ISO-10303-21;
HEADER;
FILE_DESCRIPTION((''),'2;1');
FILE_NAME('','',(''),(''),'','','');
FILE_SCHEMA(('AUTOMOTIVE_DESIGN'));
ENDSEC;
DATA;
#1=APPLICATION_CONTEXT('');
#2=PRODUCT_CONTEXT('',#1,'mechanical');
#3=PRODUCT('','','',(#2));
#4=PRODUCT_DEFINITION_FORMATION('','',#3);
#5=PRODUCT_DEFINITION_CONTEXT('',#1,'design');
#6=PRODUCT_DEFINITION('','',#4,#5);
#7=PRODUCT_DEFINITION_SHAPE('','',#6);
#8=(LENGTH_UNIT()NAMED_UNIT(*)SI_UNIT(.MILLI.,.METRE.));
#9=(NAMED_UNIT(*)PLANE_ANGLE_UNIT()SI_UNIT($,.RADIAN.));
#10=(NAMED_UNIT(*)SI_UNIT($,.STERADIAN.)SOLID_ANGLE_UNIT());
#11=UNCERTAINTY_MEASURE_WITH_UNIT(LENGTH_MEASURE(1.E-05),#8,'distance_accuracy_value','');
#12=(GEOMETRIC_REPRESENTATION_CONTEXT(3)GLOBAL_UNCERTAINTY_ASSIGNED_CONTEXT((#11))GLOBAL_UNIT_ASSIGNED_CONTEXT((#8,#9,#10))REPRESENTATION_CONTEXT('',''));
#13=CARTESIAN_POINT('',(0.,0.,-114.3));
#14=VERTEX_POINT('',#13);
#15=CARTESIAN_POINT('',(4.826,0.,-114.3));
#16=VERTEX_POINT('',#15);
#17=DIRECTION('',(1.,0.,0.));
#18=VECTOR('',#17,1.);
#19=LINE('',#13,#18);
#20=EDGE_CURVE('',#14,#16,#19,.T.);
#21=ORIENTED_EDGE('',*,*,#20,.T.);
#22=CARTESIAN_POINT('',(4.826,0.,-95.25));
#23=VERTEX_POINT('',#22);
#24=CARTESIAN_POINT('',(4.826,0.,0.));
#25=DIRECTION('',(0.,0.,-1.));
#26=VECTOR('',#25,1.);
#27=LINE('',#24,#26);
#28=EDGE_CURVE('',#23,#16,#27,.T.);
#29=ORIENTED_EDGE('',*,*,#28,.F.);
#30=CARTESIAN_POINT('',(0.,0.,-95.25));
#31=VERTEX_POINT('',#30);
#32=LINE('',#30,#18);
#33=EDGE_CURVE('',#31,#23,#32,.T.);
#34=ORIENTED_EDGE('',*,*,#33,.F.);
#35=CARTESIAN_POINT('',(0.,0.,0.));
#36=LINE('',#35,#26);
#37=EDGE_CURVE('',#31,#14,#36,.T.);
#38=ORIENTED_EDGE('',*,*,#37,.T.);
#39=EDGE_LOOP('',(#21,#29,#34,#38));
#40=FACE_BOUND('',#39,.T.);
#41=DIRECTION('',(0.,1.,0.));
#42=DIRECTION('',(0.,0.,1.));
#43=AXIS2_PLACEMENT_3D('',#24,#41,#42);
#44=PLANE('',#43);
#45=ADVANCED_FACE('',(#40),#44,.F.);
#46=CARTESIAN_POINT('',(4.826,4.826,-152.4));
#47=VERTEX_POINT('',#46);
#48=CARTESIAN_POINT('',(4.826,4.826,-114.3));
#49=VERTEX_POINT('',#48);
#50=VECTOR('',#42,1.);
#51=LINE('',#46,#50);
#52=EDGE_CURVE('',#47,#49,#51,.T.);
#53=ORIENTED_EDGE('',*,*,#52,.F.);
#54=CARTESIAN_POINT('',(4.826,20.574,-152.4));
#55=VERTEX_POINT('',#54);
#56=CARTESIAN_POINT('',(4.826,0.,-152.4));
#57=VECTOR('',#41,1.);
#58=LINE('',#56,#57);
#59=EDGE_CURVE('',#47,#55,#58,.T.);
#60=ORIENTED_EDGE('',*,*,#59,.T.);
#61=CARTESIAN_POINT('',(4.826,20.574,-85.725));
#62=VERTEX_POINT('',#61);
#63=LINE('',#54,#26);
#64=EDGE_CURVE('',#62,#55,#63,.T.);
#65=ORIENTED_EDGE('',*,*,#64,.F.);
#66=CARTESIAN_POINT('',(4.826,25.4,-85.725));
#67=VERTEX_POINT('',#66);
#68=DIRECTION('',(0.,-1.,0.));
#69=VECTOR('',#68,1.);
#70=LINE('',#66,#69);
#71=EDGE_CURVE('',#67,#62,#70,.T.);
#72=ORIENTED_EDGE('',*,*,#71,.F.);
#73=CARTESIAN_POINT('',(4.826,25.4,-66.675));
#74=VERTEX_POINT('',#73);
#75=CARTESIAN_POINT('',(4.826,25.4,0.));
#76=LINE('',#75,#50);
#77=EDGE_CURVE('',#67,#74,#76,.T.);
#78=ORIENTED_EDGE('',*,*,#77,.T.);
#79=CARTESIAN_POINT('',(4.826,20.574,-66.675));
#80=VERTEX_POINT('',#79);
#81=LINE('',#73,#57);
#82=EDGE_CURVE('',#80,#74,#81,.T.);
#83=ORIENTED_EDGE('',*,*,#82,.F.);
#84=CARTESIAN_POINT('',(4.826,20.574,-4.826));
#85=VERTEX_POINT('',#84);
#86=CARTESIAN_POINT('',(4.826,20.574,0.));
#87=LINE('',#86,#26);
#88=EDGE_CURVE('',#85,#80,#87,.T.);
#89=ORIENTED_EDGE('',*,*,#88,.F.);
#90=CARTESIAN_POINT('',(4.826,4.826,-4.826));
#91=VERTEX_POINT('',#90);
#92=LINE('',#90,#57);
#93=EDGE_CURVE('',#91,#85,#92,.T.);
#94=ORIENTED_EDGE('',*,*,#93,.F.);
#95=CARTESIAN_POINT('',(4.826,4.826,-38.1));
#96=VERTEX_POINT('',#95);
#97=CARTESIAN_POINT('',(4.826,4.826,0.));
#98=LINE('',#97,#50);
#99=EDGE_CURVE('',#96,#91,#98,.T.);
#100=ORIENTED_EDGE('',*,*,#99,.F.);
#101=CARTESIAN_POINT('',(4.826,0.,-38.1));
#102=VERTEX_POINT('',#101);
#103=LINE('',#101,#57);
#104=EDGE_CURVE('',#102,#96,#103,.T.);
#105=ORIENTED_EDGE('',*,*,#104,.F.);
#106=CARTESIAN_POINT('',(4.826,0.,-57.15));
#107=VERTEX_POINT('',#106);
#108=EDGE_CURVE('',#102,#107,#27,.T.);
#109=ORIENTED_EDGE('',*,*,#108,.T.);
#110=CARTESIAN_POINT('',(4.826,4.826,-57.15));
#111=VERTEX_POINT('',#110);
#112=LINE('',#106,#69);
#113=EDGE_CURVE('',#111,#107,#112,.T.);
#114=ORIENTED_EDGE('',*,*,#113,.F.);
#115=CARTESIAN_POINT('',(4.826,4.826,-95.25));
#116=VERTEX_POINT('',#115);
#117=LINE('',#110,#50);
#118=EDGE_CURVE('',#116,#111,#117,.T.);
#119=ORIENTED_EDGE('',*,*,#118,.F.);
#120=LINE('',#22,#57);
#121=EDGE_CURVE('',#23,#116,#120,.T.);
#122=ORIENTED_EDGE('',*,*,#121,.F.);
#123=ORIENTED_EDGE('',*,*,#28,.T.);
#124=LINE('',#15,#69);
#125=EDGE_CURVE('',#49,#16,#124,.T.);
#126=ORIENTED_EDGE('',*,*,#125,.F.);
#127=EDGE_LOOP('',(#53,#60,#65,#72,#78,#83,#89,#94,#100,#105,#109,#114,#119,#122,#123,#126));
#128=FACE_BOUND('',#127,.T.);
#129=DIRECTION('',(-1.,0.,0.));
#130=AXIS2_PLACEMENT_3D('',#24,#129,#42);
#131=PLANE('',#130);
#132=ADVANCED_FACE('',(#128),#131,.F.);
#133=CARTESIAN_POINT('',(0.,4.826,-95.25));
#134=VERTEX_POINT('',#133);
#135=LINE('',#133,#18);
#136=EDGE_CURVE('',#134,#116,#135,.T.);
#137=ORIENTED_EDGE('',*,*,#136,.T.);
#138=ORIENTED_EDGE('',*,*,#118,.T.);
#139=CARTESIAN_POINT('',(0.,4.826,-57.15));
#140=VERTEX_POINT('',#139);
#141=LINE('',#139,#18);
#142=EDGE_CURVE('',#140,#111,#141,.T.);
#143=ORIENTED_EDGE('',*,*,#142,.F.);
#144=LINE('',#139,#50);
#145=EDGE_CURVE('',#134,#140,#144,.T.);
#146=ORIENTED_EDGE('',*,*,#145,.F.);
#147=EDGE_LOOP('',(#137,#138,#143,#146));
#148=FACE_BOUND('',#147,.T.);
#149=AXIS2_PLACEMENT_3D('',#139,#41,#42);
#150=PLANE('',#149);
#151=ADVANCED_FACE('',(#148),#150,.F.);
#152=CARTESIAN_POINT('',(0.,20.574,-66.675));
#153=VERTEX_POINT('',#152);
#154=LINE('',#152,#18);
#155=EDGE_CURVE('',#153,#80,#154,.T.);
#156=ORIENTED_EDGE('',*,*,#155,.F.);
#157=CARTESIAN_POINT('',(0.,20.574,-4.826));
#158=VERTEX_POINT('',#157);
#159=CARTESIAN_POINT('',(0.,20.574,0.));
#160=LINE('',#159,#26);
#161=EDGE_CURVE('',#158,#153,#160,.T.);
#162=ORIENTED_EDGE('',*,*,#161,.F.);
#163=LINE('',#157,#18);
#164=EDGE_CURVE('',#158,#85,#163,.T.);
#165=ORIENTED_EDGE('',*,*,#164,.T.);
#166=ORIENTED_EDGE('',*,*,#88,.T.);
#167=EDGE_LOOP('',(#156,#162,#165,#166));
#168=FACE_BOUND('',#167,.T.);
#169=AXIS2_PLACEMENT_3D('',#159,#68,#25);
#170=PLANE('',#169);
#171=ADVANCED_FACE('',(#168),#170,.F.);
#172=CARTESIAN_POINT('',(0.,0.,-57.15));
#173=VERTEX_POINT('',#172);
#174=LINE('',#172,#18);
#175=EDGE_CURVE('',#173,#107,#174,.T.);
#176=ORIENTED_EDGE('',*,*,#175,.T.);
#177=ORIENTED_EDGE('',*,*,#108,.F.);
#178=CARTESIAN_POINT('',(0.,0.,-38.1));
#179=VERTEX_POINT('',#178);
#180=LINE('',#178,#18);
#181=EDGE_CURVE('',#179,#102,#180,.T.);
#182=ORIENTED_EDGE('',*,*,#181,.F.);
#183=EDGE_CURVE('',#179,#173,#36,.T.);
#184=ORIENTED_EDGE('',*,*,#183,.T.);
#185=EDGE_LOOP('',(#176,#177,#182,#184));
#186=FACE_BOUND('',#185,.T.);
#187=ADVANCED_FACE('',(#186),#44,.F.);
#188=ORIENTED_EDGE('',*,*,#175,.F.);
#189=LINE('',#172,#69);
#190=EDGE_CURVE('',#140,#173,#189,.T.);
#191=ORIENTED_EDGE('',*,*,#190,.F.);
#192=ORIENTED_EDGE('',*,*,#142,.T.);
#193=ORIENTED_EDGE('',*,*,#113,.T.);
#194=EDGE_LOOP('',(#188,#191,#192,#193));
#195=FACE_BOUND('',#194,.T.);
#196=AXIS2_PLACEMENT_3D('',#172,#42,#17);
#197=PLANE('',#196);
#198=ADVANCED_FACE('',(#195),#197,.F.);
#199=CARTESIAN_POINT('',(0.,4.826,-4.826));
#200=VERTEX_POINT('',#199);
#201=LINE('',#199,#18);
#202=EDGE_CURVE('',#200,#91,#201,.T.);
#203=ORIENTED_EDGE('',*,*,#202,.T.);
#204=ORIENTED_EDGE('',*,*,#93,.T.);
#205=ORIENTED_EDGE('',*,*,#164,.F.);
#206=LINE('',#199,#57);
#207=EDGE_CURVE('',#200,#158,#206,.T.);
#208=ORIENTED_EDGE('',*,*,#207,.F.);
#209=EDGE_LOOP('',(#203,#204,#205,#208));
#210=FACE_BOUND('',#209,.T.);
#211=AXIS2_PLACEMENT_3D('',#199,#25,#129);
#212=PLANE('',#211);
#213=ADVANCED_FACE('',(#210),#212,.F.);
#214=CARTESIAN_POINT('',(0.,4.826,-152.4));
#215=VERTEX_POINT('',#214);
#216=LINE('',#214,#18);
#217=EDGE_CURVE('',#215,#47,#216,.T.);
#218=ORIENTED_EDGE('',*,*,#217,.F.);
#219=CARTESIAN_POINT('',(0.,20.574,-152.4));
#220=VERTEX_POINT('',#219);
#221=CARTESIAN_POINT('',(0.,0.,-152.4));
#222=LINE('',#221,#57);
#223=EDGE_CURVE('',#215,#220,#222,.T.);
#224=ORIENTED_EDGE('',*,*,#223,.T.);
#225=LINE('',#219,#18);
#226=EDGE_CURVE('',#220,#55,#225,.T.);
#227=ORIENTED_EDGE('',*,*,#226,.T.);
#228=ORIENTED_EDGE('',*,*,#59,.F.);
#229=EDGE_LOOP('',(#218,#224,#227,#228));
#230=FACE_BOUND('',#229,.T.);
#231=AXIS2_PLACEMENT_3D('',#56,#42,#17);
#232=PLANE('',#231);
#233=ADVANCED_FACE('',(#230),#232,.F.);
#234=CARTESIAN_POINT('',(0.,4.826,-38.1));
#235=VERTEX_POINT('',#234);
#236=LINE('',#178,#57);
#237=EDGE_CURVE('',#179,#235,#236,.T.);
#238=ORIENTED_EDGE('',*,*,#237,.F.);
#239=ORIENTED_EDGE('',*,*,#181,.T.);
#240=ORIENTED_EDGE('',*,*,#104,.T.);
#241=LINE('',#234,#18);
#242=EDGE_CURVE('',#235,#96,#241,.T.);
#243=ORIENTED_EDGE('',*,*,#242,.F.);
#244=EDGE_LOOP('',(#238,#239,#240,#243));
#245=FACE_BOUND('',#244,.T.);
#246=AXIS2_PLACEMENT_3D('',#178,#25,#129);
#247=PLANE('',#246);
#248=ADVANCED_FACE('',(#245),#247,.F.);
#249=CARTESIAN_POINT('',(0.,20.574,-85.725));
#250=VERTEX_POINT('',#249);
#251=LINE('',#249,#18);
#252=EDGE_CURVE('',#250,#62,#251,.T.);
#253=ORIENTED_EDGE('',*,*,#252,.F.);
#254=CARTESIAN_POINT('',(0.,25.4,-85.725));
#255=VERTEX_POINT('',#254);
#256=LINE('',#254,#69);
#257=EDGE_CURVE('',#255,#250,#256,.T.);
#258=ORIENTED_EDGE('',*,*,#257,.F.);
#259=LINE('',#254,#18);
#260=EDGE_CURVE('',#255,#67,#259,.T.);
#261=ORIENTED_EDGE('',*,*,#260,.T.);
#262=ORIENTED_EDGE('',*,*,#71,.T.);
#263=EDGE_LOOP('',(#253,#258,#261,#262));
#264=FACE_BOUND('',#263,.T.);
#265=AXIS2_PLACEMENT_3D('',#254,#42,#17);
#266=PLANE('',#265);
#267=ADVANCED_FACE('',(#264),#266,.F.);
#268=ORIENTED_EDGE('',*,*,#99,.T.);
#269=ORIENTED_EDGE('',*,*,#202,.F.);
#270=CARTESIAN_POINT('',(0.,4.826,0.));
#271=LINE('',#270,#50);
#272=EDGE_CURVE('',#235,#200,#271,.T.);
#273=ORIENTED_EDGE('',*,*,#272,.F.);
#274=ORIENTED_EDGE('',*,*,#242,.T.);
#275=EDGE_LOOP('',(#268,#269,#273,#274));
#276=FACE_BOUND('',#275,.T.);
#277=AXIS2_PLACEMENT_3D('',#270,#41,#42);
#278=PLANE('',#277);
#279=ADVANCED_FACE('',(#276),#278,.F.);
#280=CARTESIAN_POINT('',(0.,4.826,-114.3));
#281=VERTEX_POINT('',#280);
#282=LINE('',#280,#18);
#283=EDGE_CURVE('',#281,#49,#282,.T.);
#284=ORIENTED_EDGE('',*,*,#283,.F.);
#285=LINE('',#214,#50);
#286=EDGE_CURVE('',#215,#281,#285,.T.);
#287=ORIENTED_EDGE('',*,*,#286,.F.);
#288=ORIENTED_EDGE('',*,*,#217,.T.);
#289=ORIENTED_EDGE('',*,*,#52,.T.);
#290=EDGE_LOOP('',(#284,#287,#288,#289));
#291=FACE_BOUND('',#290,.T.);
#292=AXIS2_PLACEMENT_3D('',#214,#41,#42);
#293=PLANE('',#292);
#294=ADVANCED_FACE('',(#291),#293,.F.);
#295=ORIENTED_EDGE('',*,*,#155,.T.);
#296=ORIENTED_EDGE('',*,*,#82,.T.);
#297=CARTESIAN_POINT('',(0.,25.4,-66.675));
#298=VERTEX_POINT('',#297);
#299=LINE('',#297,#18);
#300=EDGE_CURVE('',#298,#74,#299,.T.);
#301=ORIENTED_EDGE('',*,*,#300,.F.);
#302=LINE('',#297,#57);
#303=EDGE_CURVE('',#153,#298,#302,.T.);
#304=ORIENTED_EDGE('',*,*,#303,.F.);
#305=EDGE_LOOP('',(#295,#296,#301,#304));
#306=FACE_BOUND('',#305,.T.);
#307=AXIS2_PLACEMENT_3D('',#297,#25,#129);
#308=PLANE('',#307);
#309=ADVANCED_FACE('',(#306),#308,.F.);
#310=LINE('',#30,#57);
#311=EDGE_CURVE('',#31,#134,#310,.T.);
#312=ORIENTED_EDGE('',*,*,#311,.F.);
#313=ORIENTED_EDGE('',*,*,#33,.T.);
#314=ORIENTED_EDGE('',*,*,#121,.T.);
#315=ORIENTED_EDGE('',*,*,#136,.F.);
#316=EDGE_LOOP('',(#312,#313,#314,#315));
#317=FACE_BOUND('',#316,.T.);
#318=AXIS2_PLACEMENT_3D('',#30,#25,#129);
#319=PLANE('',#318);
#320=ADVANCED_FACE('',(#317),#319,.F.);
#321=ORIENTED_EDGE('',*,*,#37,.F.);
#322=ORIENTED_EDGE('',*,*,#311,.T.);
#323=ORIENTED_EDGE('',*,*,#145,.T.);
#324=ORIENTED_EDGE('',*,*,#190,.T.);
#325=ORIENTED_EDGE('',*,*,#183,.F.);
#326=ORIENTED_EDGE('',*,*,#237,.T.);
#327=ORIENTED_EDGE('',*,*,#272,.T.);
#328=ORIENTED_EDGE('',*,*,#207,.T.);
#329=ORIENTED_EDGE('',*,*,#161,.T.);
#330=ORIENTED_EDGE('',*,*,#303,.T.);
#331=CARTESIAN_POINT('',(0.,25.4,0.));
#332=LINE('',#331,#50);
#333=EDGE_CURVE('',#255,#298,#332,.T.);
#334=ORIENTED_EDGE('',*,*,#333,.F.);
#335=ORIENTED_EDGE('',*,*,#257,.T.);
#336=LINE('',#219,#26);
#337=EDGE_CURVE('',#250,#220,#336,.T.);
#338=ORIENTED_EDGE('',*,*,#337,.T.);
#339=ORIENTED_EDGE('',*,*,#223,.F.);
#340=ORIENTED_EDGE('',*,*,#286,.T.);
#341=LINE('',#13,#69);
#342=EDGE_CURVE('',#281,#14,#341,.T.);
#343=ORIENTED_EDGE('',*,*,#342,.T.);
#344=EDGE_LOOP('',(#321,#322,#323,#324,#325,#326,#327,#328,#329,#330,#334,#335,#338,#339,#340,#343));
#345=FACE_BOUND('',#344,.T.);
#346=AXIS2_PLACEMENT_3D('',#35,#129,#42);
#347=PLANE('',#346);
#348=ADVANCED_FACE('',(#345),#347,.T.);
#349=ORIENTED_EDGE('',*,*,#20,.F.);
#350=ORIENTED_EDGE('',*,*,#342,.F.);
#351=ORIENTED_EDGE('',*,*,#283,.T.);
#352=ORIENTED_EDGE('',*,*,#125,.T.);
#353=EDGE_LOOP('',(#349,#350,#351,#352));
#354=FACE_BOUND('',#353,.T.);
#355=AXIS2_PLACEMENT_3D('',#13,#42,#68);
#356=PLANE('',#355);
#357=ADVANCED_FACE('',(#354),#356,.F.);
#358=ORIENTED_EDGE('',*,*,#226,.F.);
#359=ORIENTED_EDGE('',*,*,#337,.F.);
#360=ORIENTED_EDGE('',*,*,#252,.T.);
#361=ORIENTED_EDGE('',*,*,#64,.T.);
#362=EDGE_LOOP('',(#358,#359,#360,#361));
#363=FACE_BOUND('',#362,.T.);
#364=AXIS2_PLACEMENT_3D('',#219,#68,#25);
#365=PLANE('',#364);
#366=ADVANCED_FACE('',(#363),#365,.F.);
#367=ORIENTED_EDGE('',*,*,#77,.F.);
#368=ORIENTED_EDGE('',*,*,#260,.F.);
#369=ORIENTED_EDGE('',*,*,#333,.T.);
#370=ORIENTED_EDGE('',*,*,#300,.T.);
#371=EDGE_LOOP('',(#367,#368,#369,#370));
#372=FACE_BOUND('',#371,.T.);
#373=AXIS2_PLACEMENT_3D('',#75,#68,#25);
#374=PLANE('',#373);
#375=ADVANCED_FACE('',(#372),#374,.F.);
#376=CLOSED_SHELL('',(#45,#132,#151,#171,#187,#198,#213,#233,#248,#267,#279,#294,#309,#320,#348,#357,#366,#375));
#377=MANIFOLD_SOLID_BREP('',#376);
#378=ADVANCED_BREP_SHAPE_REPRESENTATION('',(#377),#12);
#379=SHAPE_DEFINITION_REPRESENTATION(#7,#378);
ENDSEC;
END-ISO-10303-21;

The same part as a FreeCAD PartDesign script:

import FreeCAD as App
import Part
import Sketcher
from FreeCAD import Vector
Q = App.Units.Quantity


def add_polygon(sketch, points):
    """Adds a closed chain of lines whose ends are joined by coincident constraints."""
    first, n = sketch.GeometryCount, len(points)
    for a, b in zip(points, points[1:] + points[:1]):
        sketch.addGeometry(Part.LineSegment(App.Vector(*a, 0), App.Vector(*b, 0)), False)
    for i in range(n):
        sketch.addConstraint(Sketcher.Constraint("Coincident", first + i, 2, first + (i + 1) % n, 1))

doc = App.newDocument("Part")
params = doc.addObject("Spreadsheet::Sheet", "Params")
for row, (alias, value) in enumerate([
    ("sketch1_width", "1 in"),
    ("sketch1_height", "6 in"),
    ("pad1_length", "0.19 in"),
    ("sketch2_height", "1.5 in"),
    ("sketch2_width", "0.19 in"),
    ("sketch3_width", "0.19 in"),
    ("sketch3_height", "2.625 in"),
    ("sketch4_width", "0.62 in"),
    ("sketch4_height", "0.19 in"),
], start=1):
    params.set(f"A{row}", alias)
    params.set(f"B{row}", "=" + value)
    params.setAlias(f"B{row}", alias)

body = doc.addObject("PartDesign::Body", "Body")

sketch1 = body.newObject("Sketcher::SketchObject", "Sketch")
sketch1.AttachmentSupport = (doc.getObject("YZ_Plane"), [""])
sketch1.MapMode = "FlatFace"
add_polygon(sketch1, [(25, 0), (0, 0), (0, -152), (25, -152)])
sketch1.addConstraint(Sketcher.Constraint("Horizontal", 0))
sketch1.addConstraint(Sketcher.Constraint("Vertical", 1))
sketch1.addConstraint(Sketcher.Constraint("Horizontal", 2))
sketch1.addConstraint(Sketcher.Constraint("Vertical", 3))
sketch1.addConstraint(Sketcher.Constraint("Coincident", 0, 2, -1, 1))
sketch1.addConstraint(Sketcher.Constraint("DistanceX", 0, 2, 0, 1, Q("1 in")))
sketch1.addConstraint(Sketcher.Constraint("DistanceY", 1, 2, 1, 1, Q("6 in")))
sketch1.setExpression("Constraints[9]", "Params.sketch1_width")
sketch1.setExpression("Constraints[10]", "Params.sketch1_height")
pad1 = body.newObject("PartDesign::Pad", "Pad")
pad1.Profile = sketch1
pad1.setExpression("Length", "Params.pad1_length")

sketch2 = body.newObject("Sketcher::SketchObject", "Sketch001")
sketch2.AttachmentSupport = (doc.getObject("YZ_Plane"), [""])
sketch2.MapMode = "FlatFace"
sketch2.AttachmentOffset = App.Placement(Vector(0, 0, 0.19 * 25.4), App.Rotation())
add_polygon(sketch2, [(4.8, 0), (0, 0), (0, -38.1), (4.8, -38.1)])
add_polygon(sketch2, [(4.8, -57.1), (0, -57.1), (0, -95.2), (4.8, -95.2)])
add_polygon(sketch2, [(4.8, -114.3), (0, -114.3), (0, -152.4), (4.8, -152.4)])
sketch2.addConstraint(Sketcher.Constraint("Horizontal", 0))
sketch2.addConstraint(Sketcher.Constraint("Vertical", 1))
sketch2.addConstraint(Sketcher.Constraint("Horizontal", 2))
sketch2.addConstraint(Sketcher.Constraint("Vertical", 3))
sketch2.addConstraint(Sketcher.Constraint("Horizontal", 4))
sketch2.addConstraint(Sketcher.Constraint("Vertical", 5))
sketch2.addConstraint(Sketcher.Constraint("Horizontal", 6))
sketch2.addConstraint(Sketcher.Constraint("Vertical", 7))
sketch2.addConstraint(Sketcher.Constraint("Horizontal", 8))
sketch2.addConstraint(Sketcher.Constraint("Vertical", 9))
sketch2.addConstraint(Sketcher.Constraint("Horizontal", 10))
sketch2.addConstraint(Sketcher.Constraint("Vertical", 11))
sketch2.addConstraint(Sketcher.Constraint("Coincident", 0, 2, -1, 1))
sketch2.addConstraint(Sketcher.Constraint("PointOnObject", 4, 2, -2))
sketch2.addConstraint(Sketcher.Constraint("PointOnObject", 8, 2, -2))
sketch2.addConstraint(Sketcher.Constraint("Vertical", 3, 2, 6, 2))
sketch2.addConstraint(Sketcher.Constraint("Vertical", 7, 2, 10, 2))
sketch2.addConstraint(Sketcher.Constraint("Equal", 3, 5))
sketch2.addConstraint(Sketcher.Constraint("Equal", 7, 9))
sketch2.addConstraint(Sketcher.Constraint("DistanceY", 1, 2, 1, 1, Q("1.5 in")))
sketch2.addConstraint(Sketcher.Constraint("DistanceY", 9, 2, -1, 1, Q("6 in")))
sketch2.addConstraint(Sketcher.Constraint("DistanceX", 0, 2, 0, 1, Q("0.19 in")))
sketch2.addConstraint(Sketcher.Constraint("DistanceY", 4, 2, -1, 1, Q("2.25 in")))
sketch2.setExpression("Constraints[31]", "Params.sketch2_height")
sketch2.setExpression("Constraints[33]", "Params.sketch2_width")
pocket1 = body.newObject("PartDesign::Pocket", "Pocket")
pocket1.Profile = sketch2
pocket1.Type = "ThroughAll"

sketch3 = body.newObject("Sketcher::SketchObject", "Sketch002")
sketch3.AttachmentSupport = (doc.getObject("YZ_Plane"), [""])
sketch3.MapMode = "FlatFace"
sketch3.AttachmentOffset = App.Placement(Vector(0, 0, 0.19 * 25.4), App.Rotation())
add_polygon(sketch3, [(25.4, 0), (20.6, 0), (20.6, -66.7), (25.4, -66.7)])
add_polygon(sketch3, [(25.4, -85.7), (20.6, -85.7), (20.6, -152.4), (25.4, -152.4)])
sketch3.addConstraint(Sketcher.Constraint("Horizontal", 0))
sketch3.addConstraint(Sketcher.Constraint("Vertical", 1))
sketch3.addConstraint(Sketcher.Constraint("Horizontal", 2))
sketch3.addConstraint(Sketcher.Constraint("Vertical", 3))
sketch3.addConstraint(Sketcher.Constraint("Horizontal", 4))
sketch3.addConstraint(Sketcher.Constraint("Vertical", 5))
sketch3.addConstraint(Sketcher.Constraint("Horizontal", 6))
sketch3.addConstraint(Sketcher.Constraint("Vertical", 7))
sketch3.addConstraint(Sketcher.Constraint("PointOnObject", 0, 2, -1))
sketch3.addConstraint(Sketcher.Constraint("Vertical", 1, 2, 4, 2))
sketch3.addConstraint(Sketcher.Constraint("Vertical", 3, 2, 6, 2))
sketch3.addConstraint(Sketcher.Constraint("Equal", 3, 5))
sketch3.addConstraint(Sketcher.Constraint("DistanceX", -1, 1, 2, 2, Q("1 in")))
sketch3.addConstraint(Sketcher.Constraint("DistanceY", 5, 2, -1, 1, Q("6 in")))
sketch3.addConstraint(Sketcher.Constraint("DistanceX", 0, 2, 0, 1, Q("0.19 in")))
sketch3.addConstraint(Sketcher.Constraint("DistanceY", 1, 2, 1, 1, Q("2.625 in")))
sketch3.setExpression("Constraints[22]", "Params.sketch3_width")
sketch3.setExpression("Constraints[23]", "Params.sketch3_height")
pocket2 = body.newObject("PartDesign::Pocket", "Pocket001")
pocket2.Profile = sketch3
pocket2.Type = "ThroughAll"

sketch4 = body.newObject("Sketcher::SketchObject", "Sketch003")
sketch4.AttachmentSupport = (doc.getObject("YZ_Plane"), [""])
sketch4.MapMode = "FlatFace"
sketch4.AttachmentOffset = App.Placement(Vector(0, 0, 0.19 * 25.4), App.Rotation())
add_polygon(sketch4, [(20.6, 0), (4.8, 0), (4.8, -4.8), (20.6, -4.8)])
sketch4.addConstraint(Sketcher.Constraint("Horizontal", 0))
sketch4.addConstraint(Sketcher.Constraint("Vertical", 1))
sketch4.addConstraint(Sketcher.Constraint("Horizontal", 2))
sketch4.addConstraint(Sketcher.Constraint("Vertical", 3))
sketch4.addConstraint(Sketcher.Constraint("PointOnObject", 0, 2, -1))
sketch4.addConstraint(Sketcher.Constraint("DistanceX", 0, 2, 0, 1, Q("0.62 in")))
sketch4.addConstraint(Sketcher.Constraint("DistanceY", 1, 2, 1, 1, Q("0.19 in")))
sketch4.addConstraint(Sketcher.Constraint("DistanceX", -1, 1, 0, 2, Q("0.19 in")))
sketch4.setExpression("Constraints[9]", "Params.sketch4_width")
sketch4.setExpression("Constraints[10]", "Params.sketch4_height")
pocket3 = body.newObject("PartDesign::Pocket", "Pocket002")
pocket3.Profile = sketch4
pocket3.Type = "ThroughAll"

doc.recompute()
